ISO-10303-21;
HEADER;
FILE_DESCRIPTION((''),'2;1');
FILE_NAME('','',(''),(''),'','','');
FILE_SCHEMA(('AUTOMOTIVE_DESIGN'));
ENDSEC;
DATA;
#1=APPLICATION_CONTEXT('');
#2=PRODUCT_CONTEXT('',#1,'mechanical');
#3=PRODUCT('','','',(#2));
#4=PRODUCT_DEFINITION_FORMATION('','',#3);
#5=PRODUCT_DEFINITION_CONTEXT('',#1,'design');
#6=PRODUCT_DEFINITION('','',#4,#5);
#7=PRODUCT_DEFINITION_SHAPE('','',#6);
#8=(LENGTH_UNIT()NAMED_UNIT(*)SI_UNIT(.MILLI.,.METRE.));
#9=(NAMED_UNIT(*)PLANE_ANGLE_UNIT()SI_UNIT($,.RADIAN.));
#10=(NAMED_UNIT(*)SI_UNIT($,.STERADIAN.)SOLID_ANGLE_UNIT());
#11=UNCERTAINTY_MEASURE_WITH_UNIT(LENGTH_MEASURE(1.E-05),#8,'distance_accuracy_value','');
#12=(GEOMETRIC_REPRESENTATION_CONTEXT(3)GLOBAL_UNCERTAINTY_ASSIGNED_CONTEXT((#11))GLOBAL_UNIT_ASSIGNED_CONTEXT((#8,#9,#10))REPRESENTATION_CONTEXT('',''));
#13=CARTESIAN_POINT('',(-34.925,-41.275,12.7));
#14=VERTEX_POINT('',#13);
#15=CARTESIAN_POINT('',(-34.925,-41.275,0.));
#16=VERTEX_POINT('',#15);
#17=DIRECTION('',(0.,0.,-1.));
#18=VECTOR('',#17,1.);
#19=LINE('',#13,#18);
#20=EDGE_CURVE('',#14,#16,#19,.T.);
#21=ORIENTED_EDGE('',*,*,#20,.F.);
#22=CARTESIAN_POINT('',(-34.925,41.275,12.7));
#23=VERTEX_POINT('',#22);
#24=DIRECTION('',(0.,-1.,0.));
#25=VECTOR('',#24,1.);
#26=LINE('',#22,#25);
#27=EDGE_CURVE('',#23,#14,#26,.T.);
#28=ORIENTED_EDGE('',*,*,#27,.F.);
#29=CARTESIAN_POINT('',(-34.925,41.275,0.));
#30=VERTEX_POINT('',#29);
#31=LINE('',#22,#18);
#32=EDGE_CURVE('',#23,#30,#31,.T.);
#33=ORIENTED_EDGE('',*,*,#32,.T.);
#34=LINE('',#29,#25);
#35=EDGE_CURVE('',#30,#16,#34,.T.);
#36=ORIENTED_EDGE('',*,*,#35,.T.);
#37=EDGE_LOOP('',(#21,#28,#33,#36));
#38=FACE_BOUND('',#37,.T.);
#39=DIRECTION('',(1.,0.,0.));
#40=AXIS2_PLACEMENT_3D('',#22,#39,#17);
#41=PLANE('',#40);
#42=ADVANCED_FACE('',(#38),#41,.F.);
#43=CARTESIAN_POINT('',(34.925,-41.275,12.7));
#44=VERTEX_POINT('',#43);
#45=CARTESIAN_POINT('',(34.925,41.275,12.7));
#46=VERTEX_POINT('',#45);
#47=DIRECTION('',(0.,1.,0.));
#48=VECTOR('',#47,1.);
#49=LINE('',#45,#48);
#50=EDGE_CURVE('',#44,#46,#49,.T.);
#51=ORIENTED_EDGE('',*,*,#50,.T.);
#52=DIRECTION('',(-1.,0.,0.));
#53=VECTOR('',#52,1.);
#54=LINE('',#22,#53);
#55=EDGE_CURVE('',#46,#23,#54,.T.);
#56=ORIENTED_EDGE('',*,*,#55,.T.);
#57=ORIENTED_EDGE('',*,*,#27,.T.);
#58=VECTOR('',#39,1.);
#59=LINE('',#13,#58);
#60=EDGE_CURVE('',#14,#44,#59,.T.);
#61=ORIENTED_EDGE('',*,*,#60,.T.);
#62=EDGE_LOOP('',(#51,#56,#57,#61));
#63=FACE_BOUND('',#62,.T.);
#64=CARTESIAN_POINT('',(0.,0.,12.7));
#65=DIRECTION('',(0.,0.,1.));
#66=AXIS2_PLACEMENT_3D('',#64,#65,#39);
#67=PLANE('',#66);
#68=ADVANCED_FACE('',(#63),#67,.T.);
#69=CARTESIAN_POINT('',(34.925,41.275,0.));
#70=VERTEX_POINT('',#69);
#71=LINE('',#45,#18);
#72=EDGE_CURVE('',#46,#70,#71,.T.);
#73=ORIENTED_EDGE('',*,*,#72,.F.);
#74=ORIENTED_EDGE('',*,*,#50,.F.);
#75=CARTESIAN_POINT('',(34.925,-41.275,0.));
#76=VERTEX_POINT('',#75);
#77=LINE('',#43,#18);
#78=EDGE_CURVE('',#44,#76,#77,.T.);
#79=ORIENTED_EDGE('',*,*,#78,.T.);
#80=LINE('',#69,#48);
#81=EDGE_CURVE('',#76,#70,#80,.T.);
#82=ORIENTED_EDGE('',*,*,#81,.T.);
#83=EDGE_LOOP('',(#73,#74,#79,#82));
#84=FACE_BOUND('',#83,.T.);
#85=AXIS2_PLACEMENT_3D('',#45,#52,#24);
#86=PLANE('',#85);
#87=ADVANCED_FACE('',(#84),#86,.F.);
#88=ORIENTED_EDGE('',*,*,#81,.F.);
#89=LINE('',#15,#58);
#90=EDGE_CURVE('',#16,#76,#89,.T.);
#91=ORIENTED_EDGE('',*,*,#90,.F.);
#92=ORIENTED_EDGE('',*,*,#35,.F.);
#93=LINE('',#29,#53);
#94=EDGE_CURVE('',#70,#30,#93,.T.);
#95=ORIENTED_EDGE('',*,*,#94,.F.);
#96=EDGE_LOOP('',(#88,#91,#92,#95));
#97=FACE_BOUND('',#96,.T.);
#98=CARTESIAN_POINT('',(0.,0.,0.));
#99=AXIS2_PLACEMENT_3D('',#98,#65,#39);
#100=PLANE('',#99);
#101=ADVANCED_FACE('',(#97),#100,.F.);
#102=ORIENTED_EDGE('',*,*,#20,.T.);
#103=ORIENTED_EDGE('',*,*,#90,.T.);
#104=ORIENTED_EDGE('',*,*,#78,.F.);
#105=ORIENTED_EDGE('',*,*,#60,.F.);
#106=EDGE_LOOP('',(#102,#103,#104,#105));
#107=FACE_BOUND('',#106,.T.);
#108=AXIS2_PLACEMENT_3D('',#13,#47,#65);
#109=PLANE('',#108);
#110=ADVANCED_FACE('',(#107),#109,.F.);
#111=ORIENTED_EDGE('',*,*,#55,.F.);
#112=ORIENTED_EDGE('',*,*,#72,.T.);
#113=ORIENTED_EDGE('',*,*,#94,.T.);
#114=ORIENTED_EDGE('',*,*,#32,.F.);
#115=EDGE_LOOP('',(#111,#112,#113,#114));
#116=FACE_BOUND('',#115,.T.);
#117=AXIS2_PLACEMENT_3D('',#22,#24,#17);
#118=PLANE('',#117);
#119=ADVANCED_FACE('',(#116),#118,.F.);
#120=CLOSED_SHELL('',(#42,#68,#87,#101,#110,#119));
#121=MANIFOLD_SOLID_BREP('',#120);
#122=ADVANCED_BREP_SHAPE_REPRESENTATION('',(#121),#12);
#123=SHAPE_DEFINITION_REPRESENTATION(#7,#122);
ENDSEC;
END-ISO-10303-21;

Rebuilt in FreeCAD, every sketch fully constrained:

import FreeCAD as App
import Part
import Sketcher
Q = App.Units.Quantity

doc = App.newDocument("Part")
params = doc.addObject("Spreadsheet::Sheet", "Params")
for row, (alias, value) in enumerate([
    ("sketch1_width", "2.75 in"),
    ("sketch1_height", "3.25 in"),
    ("pad1_length", "0.5 in"),
], start=1):
    params.set(f"A{row}", alias)
    params.set(f"B{row}", "=" + value)
    params.setAlias(f"B{row}", alias)

body = doc.addObject("PartDesign::Body", "Body")

# Sketch on XY plane
sketch1 = body.newObject("Sketcher::SketchObject", "Sketch")
sketch1.AttachmentSupport = (doc.getObject("XY_Plane"), [""])
sketch1.MapMode = "FlatFace"
sketch1.addGeometry([
    Part.LineSegment(App.Vector(-34.925, 41.275, 0), App.Vector(-34.925, -41.275, 0)),
    Part.LineSegment(App.Vector(-34.925, -41.275, 0), App.Vector(34.925, -41.275, 0)),
    Part.LineSegment(App.Vector(34.925, -41.275, 0), App.Vector(34.925, 41.275, 0)),
    Part.LineSegment(App.Vector(34.925, 41.275, 0), App.Vector(-34.925, 41.275, 0)),
], False)
sketch1.addConstraint([
    Sketcher.Constraint("Coincident", 0, 2, 1, 1),
    Sketcher.Constraint("Coincident", 1, 2, 2, 1),
    Sketcher.Constraint("Coincident", 2, 2, 3, 1),
    Sketcher.Constraint("Coincident", 3, 2, 0, 1),
    Sketcher.Constraint("Vertical", 0),
    Sketcher.Constraint("Horizontal", 1),
    Sketcher.Constraint("Vertical", 2),
    Sketcher.Constraint("Horizontal", 3),
    Sketcher.Constraint("Symmetric", 0, 2, 2, 2, -1, 1),
    Sketcher.Constraint("DistanceX", 1, 1, 1, 2, Q("2.75 in")),
    Sketcher.Constraint("DistanceY", 0, 2, 0, 1, Q("3.25 in")),
])
sketch1.setExpression("Constraints[9]", "Params.sketch1_width")
sketch1.setExpression("Constraints[10]", "Params.sketch1_height")
pad1 = body.newObject("PartDesign::Pad", "Pad")
pad1.Profile = sketch1
pad1.setExpression("Length", "Params.pad1_length")

doc.recompute()
